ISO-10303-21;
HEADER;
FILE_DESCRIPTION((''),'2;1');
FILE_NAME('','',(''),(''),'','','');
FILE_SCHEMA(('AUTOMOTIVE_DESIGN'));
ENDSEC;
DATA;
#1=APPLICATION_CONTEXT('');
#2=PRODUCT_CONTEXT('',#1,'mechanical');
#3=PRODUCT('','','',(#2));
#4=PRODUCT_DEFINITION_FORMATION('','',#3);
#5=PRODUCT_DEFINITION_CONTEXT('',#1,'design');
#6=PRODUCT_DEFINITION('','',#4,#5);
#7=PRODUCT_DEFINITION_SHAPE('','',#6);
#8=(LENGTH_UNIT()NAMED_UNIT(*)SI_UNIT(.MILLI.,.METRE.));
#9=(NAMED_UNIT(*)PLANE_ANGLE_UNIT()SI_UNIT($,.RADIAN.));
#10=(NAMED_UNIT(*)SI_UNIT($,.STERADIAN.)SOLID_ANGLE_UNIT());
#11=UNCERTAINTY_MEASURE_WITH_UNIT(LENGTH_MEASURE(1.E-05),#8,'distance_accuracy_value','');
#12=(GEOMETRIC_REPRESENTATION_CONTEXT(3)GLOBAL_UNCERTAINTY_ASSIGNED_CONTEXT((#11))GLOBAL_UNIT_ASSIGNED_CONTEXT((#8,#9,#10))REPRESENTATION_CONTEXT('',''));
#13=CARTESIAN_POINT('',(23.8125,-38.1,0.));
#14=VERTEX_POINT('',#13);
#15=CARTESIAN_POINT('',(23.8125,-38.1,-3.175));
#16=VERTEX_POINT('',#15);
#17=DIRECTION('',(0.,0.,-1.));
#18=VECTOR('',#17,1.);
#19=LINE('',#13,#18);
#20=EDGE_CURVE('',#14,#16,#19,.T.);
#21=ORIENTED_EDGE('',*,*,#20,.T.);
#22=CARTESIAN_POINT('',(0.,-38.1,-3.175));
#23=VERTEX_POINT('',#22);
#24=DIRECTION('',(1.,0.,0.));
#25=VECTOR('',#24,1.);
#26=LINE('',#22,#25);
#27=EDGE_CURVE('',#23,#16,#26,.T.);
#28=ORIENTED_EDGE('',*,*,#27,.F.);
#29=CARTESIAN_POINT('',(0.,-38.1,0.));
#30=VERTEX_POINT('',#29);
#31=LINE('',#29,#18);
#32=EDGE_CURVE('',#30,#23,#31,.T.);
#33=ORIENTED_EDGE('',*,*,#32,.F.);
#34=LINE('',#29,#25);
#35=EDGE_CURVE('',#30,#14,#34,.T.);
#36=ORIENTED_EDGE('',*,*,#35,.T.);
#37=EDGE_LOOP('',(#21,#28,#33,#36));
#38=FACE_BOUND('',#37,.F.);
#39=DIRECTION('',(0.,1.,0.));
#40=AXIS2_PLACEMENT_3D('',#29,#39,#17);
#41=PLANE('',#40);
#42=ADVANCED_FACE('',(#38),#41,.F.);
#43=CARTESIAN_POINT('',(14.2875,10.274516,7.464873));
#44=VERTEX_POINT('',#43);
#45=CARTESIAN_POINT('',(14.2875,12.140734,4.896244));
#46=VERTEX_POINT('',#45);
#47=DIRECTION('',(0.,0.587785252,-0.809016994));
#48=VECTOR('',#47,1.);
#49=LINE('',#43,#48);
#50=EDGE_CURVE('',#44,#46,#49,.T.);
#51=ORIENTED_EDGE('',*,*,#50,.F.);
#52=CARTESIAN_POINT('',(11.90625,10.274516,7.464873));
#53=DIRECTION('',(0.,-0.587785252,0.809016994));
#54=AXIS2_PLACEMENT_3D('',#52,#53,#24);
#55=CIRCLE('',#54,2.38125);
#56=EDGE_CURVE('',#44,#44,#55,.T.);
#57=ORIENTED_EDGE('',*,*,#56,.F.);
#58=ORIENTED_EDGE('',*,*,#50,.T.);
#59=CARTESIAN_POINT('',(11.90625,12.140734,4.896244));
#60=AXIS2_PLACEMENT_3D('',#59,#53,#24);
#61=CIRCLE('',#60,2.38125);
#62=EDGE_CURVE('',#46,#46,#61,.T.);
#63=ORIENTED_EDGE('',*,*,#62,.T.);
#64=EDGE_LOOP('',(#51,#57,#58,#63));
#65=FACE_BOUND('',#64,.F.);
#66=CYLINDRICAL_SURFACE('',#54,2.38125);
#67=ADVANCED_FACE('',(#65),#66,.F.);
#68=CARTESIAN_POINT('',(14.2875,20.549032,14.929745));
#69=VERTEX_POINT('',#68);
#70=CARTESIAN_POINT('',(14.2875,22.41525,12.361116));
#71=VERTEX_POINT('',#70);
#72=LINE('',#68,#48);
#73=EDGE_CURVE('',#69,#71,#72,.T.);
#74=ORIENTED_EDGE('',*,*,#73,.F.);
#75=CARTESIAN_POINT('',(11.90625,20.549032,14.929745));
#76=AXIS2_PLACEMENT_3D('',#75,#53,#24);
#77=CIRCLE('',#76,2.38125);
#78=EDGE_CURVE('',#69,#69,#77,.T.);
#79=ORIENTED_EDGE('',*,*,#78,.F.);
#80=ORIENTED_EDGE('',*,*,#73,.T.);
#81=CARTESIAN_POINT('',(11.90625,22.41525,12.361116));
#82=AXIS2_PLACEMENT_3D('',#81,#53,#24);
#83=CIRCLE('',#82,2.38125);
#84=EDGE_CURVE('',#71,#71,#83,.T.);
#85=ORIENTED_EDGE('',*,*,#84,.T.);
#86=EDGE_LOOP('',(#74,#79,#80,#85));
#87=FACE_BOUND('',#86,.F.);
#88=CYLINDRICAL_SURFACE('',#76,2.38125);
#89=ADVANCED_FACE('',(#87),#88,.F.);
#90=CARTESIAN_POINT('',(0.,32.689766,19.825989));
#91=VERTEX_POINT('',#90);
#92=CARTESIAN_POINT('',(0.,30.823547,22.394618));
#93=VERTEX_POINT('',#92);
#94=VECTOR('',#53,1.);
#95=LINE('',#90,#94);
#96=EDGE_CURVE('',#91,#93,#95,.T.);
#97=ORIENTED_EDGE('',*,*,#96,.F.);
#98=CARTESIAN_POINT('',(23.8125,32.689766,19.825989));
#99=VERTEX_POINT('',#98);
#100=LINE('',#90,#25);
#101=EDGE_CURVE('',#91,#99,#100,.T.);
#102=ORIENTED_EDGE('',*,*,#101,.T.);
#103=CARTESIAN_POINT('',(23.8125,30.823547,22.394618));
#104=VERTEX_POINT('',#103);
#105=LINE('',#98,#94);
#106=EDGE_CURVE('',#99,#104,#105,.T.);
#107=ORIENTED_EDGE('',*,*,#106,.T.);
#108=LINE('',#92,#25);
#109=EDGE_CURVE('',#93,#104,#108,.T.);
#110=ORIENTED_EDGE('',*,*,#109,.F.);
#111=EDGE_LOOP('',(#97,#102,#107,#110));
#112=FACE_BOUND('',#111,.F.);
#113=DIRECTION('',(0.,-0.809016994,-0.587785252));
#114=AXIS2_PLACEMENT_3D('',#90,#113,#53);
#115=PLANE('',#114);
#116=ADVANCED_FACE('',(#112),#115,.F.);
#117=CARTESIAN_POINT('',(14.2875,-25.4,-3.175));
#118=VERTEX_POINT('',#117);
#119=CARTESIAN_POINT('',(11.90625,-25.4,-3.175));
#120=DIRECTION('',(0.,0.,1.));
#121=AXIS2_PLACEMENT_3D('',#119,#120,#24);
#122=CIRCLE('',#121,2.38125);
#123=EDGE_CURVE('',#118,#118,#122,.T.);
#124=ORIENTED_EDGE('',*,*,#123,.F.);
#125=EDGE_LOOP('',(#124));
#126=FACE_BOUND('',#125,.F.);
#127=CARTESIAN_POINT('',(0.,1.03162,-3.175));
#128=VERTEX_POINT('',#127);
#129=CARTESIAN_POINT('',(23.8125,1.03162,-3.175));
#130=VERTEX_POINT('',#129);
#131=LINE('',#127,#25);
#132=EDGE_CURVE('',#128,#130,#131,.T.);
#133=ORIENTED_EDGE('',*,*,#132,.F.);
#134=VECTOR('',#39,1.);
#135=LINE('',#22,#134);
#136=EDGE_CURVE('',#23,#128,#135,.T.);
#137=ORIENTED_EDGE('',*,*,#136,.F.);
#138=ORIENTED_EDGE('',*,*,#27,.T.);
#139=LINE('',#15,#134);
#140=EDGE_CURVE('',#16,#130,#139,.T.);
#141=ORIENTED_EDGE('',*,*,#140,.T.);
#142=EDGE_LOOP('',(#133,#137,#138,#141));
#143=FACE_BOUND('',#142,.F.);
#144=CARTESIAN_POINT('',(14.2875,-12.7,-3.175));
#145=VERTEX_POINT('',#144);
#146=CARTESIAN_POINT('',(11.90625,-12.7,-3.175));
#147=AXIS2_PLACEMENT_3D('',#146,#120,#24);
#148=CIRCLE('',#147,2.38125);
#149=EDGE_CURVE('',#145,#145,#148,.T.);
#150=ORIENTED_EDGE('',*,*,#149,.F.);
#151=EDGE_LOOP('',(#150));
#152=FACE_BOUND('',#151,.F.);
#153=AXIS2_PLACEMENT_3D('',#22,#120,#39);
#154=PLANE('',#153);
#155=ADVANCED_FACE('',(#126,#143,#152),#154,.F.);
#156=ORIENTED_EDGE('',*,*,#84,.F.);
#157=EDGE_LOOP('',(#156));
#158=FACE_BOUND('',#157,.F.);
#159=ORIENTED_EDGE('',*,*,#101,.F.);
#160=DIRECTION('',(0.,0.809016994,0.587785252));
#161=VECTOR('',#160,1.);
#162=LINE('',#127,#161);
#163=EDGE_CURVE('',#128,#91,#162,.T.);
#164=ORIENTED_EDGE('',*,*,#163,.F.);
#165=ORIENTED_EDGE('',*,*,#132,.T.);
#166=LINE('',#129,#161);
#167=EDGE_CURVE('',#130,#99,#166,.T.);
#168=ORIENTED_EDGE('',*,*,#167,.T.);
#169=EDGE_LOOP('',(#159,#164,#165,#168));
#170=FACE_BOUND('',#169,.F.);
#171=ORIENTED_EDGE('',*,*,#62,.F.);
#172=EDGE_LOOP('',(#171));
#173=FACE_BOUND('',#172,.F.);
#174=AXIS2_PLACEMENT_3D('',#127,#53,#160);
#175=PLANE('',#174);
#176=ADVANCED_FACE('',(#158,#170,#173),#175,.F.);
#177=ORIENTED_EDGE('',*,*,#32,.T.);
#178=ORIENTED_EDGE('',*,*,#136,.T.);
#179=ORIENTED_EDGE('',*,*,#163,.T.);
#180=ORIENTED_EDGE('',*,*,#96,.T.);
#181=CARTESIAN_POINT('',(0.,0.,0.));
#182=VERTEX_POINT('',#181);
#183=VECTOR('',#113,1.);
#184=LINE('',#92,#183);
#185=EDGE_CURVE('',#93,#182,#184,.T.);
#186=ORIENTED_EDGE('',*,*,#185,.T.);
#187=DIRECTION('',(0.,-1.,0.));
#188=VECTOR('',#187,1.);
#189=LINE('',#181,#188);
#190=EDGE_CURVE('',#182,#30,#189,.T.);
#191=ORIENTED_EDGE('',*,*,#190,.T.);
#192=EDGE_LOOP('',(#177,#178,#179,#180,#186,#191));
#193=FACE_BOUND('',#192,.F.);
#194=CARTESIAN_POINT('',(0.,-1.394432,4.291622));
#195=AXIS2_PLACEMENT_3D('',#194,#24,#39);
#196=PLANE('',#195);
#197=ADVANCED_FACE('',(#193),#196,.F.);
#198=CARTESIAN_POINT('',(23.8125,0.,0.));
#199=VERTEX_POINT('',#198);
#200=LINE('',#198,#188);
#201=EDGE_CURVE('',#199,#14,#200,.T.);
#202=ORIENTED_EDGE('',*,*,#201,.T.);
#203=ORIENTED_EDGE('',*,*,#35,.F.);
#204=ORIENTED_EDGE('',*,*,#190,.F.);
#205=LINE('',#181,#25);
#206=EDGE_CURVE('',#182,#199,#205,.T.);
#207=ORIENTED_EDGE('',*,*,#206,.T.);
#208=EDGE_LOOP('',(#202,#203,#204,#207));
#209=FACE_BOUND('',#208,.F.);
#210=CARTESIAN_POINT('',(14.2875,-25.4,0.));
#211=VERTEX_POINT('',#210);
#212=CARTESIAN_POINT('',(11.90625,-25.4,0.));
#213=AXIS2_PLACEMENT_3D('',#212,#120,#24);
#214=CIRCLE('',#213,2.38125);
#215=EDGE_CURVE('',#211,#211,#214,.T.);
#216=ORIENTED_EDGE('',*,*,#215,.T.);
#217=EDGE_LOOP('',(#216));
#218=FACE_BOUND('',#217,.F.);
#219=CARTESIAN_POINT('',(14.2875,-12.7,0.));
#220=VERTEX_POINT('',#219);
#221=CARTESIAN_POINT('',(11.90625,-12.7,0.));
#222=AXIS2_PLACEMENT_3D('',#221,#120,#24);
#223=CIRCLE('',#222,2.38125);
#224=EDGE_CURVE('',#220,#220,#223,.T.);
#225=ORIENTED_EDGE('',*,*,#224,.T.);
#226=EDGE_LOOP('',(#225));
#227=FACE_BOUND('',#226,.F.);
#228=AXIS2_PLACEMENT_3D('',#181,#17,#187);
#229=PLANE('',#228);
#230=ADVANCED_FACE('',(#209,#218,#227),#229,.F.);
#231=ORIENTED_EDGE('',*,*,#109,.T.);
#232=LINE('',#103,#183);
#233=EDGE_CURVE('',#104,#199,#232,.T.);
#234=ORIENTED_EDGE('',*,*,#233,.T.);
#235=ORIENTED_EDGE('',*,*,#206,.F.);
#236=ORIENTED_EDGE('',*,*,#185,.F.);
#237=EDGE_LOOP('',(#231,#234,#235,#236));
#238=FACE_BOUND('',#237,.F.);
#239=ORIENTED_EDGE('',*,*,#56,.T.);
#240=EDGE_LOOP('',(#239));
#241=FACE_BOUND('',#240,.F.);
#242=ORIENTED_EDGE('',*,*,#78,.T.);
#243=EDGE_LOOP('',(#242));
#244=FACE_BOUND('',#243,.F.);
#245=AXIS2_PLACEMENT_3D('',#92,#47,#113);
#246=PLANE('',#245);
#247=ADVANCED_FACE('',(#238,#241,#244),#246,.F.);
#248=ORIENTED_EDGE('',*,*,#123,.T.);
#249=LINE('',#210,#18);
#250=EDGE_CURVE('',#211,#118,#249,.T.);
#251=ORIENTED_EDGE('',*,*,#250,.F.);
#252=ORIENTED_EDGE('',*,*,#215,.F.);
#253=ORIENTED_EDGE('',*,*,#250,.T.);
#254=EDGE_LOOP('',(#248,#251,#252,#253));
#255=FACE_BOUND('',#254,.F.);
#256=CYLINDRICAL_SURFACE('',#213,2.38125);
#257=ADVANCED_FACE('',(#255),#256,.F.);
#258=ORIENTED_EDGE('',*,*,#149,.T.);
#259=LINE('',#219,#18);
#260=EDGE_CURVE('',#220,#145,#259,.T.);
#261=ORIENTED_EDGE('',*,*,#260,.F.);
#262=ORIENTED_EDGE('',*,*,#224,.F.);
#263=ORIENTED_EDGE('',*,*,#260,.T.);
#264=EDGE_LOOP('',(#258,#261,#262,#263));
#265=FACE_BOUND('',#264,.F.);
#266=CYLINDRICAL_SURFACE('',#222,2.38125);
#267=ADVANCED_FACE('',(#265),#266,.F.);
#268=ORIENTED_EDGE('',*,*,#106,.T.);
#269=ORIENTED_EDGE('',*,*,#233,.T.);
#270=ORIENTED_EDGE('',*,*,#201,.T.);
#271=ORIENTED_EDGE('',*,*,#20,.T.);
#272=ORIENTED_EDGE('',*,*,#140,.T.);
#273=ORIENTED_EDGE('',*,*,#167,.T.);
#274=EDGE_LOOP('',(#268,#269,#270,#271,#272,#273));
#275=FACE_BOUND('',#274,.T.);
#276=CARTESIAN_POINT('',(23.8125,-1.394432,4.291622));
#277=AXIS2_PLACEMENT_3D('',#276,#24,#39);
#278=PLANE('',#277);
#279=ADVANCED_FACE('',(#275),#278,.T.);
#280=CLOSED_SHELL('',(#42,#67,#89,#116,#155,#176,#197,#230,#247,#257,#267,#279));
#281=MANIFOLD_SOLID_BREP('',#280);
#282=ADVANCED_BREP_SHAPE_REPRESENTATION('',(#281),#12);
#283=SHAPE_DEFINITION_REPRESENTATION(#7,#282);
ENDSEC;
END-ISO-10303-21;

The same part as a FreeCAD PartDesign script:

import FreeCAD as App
import Part
import Sketcher
from FreeCAD import Vector
Q = App.Units.Quantity


def add_polygon(sketch, points):
    """Adds a closed chain of lines whose ends are joined by coincident constraints."""
    first, n = sketch.GeometryCount, len(points)
    for a, b in zip(points, points[1:] + points[:1]):
        sketch.addGeometry(Part.LineSegment(App.Vector(*a, 0), App.Vector(*b, 0)), False)
    for i in range(n):
        sketch.addConstraint(Sketcher.Constraint("Coincident", first + i, 2, first + (i + 1) % n, 1))

doc = App.newDocument("Part")
body = doc.addObject("PartDesign::Body", "Body")

# Sketch on YZ plane
sketch1 = body.newObject("Sketcher::SketchObject", "Sketch")
sketch1.AttachmentSupport = (doc.getObject("YZ_Plane"), [""])
sketch1.MapMode = "FlatFace"
add_polygon(sketch1, [(30.8, 22.4), (0, 0), (-38.1, 0), (-38.1, -3.2), (1, -3.2), (32.7, 19.8)])  # lines 0-5
sketch1.addConstraint([
    Sketcher.Constraint("Horizontal", 1),
    Sketcher.Constraint("Vertical", 2),
    Sketcher.Constraint("Horizontal", 3),
    Sketcher.Constraint("Coincident", 0, 2, -1, 1),
    Sketcher.Constraint("Parallel", 0, 4),
    Sketcher.Constraint("Perpendicular", 4, 5),
    Sketcher.Constraint("DistanceX", 1, 2, 1, 1, Q("1.5 in")),
    Sketcher.Constraint("Angle", 0, Q("-144 deg")),
    Sketcher.Constraint("Distance", 0, Q("1.5 in")),
    Sketcher.Constraint("DistanceY", 2, 2, 2, 1, Q("0.125 in")),
    Sketcher.Constraint("Distance", 5, Q("0.125 in")),
])
pad1 = body.newObject("PartDesign::Pad", "Pad")
pad1.Profile = sketch1
pad1.Length = Q("0.9375 in")

# Sketch on XY plane
sketch2 = body.newObject("Sketcher::SketchObject", "Sketch001")
sketch2.AttachmentSupport = (doc.getObject("XY_Plane"), [""])
sketch2.MapMode = "FlatFace"
sketch2.addGeometry([
    Part.Circle(Vector(11.9, -25.4, 0), Vector(0, 0, 1), 2.4),
    Part.Circle(Vector(11.9, -12.7, 0), Vector(0, 0, 1), 2.4),
], False)
sketch2.addConstraint([
    Sketcher.Constraint("Equal", 0, 1),
    Sketcher.Constraint("Vertical", 0, 3, 1, 3),
    Sketcher.Constraint("Diameter", 0, Q("0.1875 in")),
    Sketcher.Constraint("DistanceY", 0, 3, -1, 1, Q("1 in")),
    Sketcher.Constraint("DistanceY", 1, 3, -1, 1, Q("0.5 in")),
    Sketcher.Constraint("DistanceX", -1, 1, 0, 3, Q("0.46875 in")),
])
pocket1 = body.newObject("PartDesign::Pocket", "Pocket")
pocket1.Profile = sketch2
pocket1.Length = Q("1 in")

# Sketch on an angled plane
sketch3 = body.newObject("Sketcher::SketchObject", "Sketch002")
sketch3.Placement = App.Placement(Vector(0, 0, 0), App.Rotation(Vector(1, 0, 0), Vector(0, 0.809016994, 0.587785252), Vector(0, -0.587785252, 0.809016994), "ZXY"))
sketch3.addGeometry([
    Part.Circle(Vector(11.9, 12.7, 0), Vector(0, 0, 1), 2.4),
    Part.Circle(Vector(11.9, 25.4, 0), Vector(0, 0, 1), 2.4),
], False)
sketch3.addConstraint([
    Sketcher.Constraint("Equal", 0, 1),
    Sketcher.Constraint("Vertical", 0, 3, 1, 3),
    Sketcher.Constraint("Diameter", 0, Q("0.1875 in")),
    Sketcher.Constraint("DistanceY", -1, 1, 1, 3, Q("1 in")),
    Sketcher.Constraint("DistanceY", -1, 1, 0, 3, Q("0.5 in")),
    Sketcher.Constraint("DistanceX", -1, 1, 0, 3, Q("0.46875 in")),
])
pocket2 = body.newObject("PartDesign::Pocket", "Pocket001")
pocket2.Profile = sketch3
pocket2.Length = Q("1 in")

doc.recompute()
